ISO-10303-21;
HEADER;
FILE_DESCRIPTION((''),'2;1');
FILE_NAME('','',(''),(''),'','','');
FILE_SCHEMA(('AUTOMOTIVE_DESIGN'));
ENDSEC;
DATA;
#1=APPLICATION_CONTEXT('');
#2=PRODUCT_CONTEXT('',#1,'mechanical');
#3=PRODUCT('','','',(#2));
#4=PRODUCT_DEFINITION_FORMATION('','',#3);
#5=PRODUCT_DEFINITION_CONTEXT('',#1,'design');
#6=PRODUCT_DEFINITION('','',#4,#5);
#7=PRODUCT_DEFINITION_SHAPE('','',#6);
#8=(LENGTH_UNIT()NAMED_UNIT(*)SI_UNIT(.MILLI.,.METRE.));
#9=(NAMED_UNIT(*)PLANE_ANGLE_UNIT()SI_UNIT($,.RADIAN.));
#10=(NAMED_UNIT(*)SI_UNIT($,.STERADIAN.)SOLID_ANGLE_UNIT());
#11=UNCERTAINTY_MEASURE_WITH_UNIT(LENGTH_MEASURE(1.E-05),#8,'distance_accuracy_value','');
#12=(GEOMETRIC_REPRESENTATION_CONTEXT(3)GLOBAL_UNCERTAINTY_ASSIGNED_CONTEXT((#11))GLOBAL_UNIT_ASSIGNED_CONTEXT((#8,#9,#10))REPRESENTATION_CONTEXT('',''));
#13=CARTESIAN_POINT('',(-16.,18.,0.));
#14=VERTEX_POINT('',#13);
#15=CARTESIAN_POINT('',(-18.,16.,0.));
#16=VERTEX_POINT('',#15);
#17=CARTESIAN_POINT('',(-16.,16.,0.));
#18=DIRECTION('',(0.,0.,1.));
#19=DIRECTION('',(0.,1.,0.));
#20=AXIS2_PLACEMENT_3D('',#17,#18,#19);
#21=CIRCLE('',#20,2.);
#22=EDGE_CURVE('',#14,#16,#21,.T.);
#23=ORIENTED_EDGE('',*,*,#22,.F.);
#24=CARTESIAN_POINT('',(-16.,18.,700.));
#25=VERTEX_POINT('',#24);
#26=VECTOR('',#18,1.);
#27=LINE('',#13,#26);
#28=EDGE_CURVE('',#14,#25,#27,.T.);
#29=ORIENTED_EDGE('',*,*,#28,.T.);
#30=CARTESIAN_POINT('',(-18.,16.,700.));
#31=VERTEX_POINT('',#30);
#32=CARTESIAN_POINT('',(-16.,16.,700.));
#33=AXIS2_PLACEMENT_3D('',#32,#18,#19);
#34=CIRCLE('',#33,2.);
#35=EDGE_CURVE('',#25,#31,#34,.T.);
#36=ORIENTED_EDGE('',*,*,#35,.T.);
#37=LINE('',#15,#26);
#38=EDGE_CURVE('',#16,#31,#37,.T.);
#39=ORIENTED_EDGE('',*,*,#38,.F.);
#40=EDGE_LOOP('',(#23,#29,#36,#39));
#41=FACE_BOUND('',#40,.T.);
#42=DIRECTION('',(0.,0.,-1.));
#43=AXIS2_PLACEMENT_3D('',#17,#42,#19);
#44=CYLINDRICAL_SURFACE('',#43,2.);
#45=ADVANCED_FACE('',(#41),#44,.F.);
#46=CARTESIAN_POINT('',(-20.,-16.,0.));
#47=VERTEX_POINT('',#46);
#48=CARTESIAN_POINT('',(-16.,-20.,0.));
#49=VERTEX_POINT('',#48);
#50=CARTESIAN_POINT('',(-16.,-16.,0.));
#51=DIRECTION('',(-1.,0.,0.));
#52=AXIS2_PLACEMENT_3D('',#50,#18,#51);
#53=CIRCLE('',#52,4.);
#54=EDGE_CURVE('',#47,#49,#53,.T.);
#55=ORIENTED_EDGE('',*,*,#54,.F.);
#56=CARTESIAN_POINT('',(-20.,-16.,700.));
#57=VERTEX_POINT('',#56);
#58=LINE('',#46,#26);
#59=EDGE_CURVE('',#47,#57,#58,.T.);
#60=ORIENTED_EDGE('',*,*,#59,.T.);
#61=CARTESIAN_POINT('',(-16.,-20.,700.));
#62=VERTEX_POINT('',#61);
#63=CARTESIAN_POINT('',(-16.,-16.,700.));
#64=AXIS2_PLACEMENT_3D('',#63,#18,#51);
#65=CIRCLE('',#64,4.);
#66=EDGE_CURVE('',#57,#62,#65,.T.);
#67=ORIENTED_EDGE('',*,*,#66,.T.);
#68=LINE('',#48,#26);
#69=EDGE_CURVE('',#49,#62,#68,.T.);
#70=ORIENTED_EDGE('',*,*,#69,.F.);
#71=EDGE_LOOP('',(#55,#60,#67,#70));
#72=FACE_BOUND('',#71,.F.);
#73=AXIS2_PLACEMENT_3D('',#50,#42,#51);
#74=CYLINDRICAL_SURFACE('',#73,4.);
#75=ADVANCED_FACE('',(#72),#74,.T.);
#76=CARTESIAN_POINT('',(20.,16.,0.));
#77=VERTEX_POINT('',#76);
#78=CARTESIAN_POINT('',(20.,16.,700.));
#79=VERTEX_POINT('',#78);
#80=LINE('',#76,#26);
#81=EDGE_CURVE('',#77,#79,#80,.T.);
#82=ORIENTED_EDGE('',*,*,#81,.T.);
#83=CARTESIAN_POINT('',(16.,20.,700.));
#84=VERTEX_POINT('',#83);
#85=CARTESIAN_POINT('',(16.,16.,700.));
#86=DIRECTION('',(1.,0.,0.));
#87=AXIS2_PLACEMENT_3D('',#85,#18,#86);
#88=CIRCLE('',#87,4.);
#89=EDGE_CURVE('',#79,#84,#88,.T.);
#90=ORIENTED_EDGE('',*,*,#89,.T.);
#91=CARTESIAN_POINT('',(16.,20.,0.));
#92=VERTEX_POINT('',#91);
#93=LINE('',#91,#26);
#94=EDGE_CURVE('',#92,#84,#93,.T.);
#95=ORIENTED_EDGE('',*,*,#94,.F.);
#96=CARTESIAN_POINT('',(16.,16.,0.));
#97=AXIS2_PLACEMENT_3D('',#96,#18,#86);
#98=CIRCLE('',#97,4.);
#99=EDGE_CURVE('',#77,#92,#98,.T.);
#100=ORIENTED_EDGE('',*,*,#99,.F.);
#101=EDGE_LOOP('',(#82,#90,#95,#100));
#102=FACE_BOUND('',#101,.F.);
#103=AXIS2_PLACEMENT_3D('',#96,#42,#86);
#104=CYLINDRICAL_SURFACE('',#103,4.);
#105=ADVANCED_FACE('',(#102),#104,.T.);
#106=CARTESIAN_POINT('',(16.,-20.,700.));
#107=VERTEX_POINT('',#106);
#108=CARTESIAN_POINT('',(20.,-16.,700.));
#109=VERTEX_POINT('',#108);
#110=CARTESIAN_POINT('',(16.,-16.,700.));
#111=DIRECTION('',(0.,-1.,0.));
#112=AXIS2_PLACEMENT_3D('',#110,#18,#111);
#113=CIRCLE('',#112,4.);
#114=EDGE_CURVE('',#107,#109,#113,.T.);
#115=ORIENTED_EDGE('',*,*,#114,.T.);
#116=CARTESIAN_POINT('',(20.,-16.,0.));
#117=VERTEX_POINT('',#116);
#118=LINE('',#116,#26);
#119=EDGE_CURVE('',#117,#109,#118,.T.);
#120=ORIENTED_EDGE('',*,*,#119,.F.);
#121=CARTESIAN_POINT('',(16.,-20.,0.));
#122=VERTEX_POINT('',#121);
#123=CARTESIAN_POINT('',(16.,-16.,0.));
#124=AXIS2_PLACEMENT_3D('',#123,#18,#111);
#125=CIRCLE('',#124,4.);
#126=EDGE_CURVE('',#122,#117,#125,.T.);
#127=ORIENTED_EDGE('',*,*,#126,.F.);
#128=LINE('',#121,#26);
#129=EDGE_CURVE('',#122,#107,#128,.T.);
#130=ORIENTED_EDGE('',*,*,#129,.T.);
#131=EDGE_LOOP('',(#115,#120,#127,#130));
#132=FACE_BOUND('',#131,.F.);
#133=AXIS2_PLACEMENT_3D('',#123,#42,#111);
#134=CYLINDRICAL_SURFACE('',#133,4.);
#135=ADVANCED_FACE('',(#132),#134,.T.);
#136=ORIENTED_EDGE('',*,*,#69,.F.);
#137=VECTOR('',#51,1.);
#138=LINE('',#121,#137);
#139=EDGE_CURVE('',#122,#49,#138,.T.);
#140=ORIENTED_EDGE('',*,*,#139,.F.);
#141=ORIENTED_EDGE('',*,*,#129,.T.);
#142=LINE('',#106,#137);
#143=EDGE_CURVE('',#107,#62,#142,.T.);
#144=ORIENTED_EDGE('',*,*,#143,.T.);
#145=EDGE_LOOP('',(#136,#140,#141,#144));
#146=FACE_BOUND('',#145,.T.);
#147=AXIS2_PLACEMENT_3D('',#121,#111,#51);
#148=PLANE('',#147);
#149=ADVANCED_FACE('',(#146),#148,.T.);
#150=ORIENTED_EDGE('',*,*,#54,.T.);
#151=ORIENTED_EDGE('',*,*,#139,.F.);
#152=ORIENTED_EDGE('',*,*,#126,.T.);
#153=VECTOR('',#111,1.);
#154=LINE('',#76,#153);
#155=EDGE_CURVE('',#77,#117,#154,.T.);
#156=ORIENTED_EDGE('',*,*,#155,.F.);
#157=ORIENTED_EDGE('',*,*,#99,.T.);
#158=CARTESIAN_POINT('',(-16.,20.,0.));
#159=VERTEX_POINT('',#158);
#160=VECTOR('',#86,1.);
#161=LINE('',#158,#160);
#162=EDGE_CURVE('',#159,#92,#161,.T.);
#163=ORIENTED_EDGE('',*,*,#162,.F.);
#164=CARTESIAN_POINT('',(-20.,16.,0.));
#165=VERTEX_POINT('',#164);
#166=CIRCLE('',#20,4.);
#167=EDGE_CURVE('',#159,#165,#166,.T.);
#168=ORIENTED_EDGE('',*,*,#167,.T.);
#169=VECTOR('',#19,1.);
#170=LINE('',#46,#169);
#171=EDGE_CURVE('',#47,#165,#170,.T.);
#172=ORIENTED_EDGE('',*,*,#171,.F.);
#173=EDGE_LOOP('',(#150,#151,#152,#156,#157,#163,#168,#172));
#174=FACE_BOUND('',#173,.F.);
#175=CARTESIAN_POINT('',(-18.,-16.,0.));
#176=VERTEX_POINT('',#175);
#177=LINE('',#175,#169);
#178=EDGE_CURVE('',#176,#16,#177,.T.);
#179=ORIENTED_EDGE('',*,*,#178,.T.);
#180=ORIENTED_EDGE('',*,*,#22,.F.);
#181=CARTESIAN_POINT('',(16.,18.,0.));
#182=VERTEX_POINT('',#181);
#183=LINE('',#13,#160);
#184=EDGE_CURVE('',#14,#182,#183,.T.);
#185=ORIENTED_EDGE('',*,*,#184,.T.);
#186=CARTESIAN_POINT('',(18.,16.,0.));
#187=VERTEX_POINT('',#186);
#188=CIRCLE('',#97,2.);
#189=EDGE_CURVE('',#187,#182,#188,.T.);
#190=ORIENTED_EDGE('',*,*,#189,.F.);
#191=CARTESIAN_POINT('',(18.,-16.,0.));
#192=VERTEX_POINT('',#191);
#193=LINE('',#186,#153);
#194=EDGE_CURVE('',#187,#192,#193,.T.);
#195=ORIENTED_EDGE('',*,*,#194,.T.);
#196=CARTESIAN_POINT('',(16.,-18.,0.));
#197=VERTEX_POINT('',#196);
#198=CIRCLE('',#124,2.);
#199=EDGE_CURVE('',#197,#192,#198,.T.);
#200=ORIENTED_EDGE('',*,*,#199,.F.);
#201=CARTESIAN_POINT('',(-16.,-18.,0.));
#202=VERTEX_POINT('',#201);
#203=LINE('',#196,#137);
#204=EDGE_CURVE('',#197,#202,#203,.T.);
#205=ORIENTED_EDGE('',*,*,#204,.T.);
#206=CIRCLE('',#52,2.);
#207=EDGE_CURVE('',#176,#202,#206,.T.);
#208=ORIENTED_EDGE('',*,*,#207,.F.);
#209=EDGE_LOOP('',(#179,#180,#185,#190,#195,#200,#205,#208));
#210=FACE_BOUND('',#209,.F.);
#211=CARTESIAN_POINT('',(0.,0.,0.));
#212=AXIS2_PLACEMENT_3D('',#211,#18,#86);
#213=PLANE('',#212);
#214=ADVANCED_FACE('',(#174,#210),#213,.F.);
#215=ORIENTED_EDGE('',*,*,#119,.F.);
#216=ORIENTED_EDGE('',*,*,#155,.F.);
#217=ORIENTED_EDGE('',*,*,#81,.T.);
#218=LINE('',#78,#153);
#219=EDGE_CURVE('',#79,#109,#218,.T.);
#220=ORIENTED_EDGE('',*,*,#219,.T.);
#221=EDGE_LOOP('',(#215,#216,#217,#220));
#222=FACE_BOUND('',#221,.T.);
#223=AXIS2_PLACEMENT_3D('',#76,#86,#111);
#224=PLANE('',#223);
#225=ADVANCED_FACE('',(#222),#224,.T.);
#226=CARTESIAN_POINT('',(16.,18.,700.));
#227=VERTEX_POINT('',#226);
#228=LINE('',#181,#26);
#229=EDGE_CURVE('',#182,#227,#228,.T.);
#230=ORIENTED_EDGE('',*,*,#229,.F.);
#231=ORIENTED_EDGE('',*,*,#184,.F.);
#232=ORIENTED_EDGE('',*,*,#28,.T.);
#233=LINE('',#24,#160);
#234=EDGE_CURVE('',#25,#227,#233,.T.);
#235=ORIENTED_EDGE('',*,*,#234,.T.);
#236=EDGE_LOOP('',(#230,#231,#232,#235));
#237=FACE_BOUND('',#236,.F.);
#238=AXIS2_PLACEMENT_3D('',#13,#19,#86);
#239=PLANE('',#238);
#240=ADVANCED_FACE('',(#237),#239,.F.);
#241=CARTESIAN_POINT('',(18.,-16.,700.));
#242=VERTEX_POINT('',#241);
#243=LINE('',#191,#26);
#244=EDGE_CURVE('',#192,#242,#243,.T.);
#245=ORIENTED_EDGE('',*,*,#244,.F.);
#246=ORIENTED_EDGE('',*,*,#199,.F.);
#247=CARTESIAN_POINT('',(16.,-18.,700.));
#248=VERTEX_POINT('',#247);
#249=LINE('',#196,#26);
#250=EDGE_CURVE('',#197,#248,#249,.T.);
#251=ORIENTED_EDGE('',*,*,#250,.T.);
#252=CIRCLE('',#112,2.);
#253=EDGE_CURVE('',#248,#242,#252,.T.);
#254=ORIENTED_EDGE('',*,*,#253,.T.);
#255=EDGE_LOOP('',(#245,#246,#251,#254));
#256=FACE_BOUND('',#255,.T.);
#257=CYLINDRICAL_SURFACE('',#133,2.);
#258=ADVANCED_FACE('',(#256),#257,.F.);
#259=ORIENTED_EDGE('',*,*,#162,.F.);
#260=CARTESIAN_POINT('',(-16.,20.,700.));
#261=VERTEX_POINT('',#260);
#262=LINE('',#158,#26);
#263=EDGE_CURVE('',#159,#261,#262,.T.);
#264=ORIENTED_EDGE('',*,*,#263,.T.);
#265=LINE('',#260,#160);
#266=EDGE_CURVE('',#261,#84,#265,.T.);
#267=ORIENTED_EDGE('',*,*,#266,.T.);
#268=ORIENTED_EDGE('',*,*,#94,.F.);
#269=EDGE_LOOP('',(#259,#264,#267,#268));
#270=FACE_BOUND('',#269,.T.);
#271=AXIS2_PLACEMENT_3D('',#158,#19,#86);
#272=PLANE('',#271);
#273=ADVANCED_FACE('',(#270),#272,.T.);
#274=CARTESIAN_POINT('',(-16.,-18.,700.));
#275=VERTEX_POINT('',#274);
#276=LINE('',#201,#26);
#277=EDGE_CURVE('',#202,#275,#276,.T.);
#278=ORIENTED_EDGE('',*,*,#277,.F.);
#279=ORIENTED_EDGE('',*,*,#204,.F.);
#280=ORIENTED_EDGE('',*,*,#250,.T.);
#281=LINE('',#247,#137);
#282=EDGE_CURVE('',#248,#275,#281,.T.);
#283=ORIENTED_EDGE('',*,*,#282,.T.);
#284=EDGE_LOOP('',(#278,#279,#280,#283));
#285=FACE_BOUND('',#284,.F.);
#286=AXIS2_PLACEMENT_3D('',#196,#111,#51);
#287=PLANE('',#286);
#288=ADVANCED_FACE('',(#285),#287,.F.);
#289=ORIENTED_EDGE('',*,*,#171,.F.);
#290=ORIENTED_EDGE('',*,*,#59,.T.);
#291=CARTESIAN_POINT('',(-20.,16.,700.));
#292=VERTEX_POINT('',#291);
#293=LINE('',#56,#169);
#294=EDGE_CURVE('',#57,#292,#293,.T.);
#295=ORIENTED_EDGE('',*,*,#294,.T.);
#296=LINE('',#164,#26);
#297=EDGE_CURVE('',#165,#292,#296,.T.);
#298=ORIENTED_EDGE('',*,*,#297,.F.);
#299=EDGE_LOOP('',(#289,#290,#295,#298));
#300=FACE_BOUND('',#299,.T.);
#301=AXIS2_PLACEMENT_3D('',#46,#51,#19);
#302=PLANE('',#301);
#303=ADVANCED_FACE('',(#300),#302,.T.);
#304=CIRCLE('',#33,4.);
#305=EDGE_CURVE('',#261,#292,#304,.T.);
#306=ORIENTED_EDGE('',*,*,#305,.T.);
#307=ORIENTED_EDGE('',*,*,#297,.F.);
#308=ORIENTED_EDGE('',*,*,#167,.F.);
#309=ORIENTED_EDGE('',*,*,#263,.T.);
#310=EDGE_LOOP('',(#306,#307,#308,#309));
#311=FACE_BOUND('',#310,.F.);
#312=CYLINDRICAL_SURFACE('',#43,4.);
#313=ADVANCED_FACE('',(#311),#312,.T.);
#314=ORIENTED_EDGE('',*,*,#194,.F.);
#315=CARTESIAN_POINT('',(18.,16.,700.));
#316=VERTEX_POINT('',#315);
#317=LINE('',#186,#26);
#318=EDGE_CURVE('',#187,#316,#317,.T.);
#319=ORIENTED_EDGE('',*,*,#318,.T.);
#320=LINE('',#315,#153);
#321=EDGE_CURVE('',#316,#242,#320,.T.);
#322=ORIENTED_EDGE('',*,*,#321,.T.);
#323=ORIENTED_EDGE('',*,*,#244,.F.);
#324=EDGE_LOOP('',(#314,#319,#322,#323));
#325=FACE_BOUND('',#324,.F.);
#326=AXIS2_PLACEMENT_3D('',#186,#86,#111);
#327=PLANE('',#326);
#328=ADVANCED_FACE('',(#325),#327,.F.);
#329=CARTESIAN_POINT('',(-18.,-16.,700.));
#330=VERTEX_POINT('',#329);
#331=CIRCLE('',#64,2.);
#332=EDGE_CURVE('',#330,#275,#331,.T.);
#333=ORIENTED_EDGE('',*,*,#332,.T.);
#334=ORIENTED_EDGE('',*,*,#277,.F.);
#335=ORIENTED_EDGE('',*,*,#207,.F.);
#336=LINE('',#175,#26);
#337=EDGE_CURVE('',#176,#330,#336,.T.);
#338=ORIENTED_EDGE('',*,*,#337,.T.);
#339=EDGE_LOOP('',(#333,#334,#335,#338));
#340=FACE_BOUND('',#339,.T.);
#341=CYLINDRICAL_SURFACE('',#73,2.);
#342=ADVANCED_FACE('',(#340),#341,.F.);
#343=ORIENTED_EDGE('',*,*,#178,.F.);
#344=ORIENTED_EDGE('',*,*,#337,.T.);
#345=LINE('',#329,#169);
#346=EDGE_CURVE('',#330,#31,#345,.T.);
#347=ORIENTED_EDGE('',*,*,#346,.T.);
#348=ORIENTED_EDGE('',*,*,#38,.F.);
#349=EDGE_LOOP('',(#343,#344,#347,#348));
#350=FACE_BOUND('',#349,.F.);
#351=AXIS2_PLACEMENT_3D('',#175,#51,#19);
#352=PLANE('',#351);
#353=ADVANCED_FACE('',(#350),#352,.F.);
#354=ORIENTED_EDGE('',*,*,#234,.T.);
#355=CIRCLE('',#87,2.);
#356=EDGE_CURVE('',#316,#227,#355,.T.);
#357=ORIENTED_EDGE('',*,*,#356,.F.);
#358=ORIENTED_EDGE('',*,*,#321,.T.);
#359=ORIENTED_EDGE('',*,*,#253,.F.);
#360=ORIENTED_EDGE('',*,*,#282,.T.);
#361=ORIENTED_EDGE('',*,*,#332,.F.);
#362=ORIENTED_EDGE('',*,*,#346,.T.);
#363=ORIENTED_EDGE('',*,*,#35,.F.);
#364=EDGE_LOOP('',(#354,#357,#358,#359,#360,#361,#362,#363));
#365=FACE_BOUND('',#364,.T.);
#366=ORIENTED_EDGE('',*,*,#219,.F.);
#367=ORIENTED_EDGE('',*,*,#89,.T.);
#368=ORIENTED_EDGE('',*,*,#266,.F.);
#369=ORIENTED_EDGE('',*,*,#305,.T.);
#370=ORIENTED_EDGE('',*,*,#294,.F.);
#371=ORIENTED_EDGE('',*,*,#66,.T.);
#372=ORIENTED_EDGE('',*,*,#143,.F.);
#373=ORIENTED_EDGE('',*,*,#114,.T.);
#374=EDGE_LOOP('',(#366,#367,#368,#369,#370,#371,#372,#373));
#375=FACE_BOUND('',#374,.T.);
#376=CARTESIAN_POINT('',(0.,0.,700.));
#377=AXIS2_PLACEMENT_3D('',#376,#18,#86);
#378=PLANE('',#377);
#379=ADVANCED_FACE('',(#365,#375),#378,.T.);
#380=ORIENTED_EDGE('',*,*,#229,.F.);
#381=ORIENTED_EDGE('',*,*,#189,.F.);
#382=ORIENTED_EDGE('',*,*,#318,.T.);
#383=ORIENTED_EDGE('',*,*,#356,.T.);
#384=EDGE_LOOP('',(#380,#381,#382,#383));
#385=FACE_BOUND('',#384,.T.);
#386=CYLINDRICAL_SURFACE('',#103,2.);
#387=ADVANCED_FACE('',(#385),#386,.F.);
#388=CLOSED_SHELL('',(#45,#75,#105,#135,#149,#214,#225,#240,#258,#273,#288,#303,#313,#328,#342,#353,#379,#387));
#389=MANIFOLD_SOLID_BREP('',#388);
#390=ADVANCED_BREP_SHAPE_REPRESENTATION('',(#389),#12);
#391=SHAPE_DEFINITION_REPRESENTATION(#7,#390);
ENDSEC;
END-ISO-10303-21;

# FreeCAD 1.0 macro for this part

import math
import FreeCAD as App
import Part
import Sketcher
from FreeCAD import Vector

doc = App.newDocument("Part")
body = doc.addObject("PartDesign::Body", "Body")

sketch1 = body.newObject("Sketcher::SketchObject", "Sketch")
sketch1.AttachmentSupport = (doc.getObject("XY_Plane"), [""])
sketch1.MapMode = "FlatFace"
sketch1.addGeometry([
    Part.LineSegment(Vector(-20, 16, 0), Vector(-20, -16, 0)),
    Part.ArcOfCircle(Part.Circle(Vector(-16, -16, 0), Vector(0, 0, 1), 4), math.radians(180), math.radians(270)),
    Part.LineSegment(Vector(-16, -20, 0), Vector(16, -20, 0)),
    Part.ArcOfCircle(Part.Circle(Vector(16, -16, 0), Vector(0, 0, 1), 4), math.radians(-90), math.radians(0)),
    Part.LineSegment(Vector(20, -16, 0), Vector(20, 16, 0)),
    Part.ArcOfCircle(Part.Circle(Vector(16, 16, 0), Vector(0, 0, 1), 4), math.radians(0), math.radians(90)),
    Part.LineSegment(Vector(16, 20, 0), Vector(-16, 20, 0)),
    Part.ArcOfCircle(Part.Circle(Vector(-16, 16, 0), Vector(0, 0, 1), 4), math.radians(90), math.radians(180)),
    Part.ArcOfCircle(Part.Circle(Vector(-16, 16, 0), Vector(0, 0, 1), 2), math.radians(90), math.radians(180)),
    Part.LineSegment(Vector(-16, 18, 0), Vector(16, 18, 0)),
    Part.ArcOfCircle(Part.Circle(Vector(16, 16, 0), Vector(0, 0, 1), 2), math.radians(0), math.radians(90)),
    Part.LineSegment(Vector(18, 16, 0), Vector(18, -16, 0)),
    Part.ArcOfCircle(Part.Circle(Vector(16, -16, 0), Vector(0, 0, 1), 2), math.radians(-90), math.radians(0)),
    Part.LineSegment(Vector(16, -18, 0), Vector(-16, -18, 0)),
    Part.ArcOfCircle(Part.Circle(Vector(-16, -16, 0), Vector(0, 0, 1), 2), math.radians(180), math.radians(270)),
    Part.LineSegment(Vector(-18, -16, 0), Vector(-18, 16, 0)),
], False)
sketch1.addConstraint([
    Sketcher.Constraint("Tangent", 0, 2, 1, 1),
    Sketcher.Constraint("Tangent", 1, 2, 2, 1),
    Sketcher.Constraint("Tangent", 2, 2, 3, 1),
    Sketcher.Constraint("Tangent", 3, 2, 4, 1),
    Sketcher.Constraint("Tangent", 4, 2, 5, 1),
    Sketcher.Constraint("Tangent", 5, 2, 6, 1),
    Sketcher.Constraint("Tangent", 6, 2, 7, 1),
    Sketcher.Constraint("Tangent", 7, 2, 0, 1),
    Sketcher.Constraint("Tangent", 8, 1, 9, 1),
    Sketcher.Constraint("Tangent", 9, 2, 10, 2),
    Sketcher.Constraint("Tangent", 10, 1, 11, 1),
    Sketcher.Constraint("Tangent", 11, 2, 12, 2),
    Sketcher.Constraint("Tangent", 12, 1, 13, 1),
    Sketcher.Constraint("Tangent", 13, 2, 14, 2),
    Sketcher.Constraint("Tangent", 14, 1, 15, 1),
    Sketcher.Constraint("Tangent", 15, 2, 8, 2),
    Sketcher.Constraint("Vertical", 0),
    Sketcher.Constraint("Horizontal", 2),
    Sketcher.Constraint("Vertical", 4),
    Sketcher.Constraint("Horizontal", 6),
    Sketcher.Constraint("Horizontal", 9),
    Sketcher.Constraint("Vertical", 11),
    Sketcher.Constraint("Horizontal", 13),
    Sketcher.Constraint("Vertical", 15),
    Sketcher.Constraint("Coincident", 8, 3, 7, 3),
    Sketcher.Constraint("Coincident", 10, 3, 5, 3),
    Sketcher.Constraint("Coincident", 12, 3, 3, 3),
    Sketcher.Constraint("Equal", 1, 3),
    Sketcher.Constraint("Equal", 3, 5),
    Sketcher.Constraint("Equal", 5, 7),
    Sketcher.Constraint("Equal", 12, 14),
    Sketcher.Constraint("Symmetric", 1, 3, 5, 3, -1, 1),
    Sketcher.Constraint("Equal", 13, 0),
    Sketcher.Constraint("Radius", 1, 4.0),
    Sketcher.Constraint("Radius", 8, 2.0),
    Sketcher.Constraint("DistanceX", 0, 2, -1, 1, 20.0),
])
pad1 = body.newObject("PartDesign::Pad", "Pad")
pad1.Profile = sketch1
pad1.Length = 700

doc.recompute()
